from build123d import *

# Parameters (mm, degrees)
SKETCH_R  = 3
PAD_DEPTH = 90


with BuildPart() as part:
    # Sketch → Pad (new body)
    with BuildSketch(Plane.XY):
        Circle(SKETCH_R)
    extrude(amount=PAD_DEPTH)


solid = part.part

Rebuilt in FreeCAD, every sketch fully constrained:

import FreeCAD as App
import Part
import Sketcher
from FreeCAD import Vector

doc = App.newDocument("Part")
body = doc.addObject("PartDesign::Body", "Body")

# Sketch on XY plane
sketch1 = body.newObject("Sketcher::SketchObject", "Sketch")
sketch1.AttachmentSupport = (doc.getObject("XY_Plane"), [""])
sketch1.MapMode = "FlatFace"
sketch1.addGeometry(Part.Circle(Vector(0, 0, 0), Vector(0, 0, 1), 3), False)
sketch1.addConstraint([
    Sketcher.Constraint("Coincident", 0, 3, -1, 1),
    Sketcher.Constraint("Diameter", 0, 6.0),
])
pad1 = body.newObject("PartDesign::Pad", "Pad")
pad1.Profile = sketch1
pad1.Length = 90

doc.recompute()
